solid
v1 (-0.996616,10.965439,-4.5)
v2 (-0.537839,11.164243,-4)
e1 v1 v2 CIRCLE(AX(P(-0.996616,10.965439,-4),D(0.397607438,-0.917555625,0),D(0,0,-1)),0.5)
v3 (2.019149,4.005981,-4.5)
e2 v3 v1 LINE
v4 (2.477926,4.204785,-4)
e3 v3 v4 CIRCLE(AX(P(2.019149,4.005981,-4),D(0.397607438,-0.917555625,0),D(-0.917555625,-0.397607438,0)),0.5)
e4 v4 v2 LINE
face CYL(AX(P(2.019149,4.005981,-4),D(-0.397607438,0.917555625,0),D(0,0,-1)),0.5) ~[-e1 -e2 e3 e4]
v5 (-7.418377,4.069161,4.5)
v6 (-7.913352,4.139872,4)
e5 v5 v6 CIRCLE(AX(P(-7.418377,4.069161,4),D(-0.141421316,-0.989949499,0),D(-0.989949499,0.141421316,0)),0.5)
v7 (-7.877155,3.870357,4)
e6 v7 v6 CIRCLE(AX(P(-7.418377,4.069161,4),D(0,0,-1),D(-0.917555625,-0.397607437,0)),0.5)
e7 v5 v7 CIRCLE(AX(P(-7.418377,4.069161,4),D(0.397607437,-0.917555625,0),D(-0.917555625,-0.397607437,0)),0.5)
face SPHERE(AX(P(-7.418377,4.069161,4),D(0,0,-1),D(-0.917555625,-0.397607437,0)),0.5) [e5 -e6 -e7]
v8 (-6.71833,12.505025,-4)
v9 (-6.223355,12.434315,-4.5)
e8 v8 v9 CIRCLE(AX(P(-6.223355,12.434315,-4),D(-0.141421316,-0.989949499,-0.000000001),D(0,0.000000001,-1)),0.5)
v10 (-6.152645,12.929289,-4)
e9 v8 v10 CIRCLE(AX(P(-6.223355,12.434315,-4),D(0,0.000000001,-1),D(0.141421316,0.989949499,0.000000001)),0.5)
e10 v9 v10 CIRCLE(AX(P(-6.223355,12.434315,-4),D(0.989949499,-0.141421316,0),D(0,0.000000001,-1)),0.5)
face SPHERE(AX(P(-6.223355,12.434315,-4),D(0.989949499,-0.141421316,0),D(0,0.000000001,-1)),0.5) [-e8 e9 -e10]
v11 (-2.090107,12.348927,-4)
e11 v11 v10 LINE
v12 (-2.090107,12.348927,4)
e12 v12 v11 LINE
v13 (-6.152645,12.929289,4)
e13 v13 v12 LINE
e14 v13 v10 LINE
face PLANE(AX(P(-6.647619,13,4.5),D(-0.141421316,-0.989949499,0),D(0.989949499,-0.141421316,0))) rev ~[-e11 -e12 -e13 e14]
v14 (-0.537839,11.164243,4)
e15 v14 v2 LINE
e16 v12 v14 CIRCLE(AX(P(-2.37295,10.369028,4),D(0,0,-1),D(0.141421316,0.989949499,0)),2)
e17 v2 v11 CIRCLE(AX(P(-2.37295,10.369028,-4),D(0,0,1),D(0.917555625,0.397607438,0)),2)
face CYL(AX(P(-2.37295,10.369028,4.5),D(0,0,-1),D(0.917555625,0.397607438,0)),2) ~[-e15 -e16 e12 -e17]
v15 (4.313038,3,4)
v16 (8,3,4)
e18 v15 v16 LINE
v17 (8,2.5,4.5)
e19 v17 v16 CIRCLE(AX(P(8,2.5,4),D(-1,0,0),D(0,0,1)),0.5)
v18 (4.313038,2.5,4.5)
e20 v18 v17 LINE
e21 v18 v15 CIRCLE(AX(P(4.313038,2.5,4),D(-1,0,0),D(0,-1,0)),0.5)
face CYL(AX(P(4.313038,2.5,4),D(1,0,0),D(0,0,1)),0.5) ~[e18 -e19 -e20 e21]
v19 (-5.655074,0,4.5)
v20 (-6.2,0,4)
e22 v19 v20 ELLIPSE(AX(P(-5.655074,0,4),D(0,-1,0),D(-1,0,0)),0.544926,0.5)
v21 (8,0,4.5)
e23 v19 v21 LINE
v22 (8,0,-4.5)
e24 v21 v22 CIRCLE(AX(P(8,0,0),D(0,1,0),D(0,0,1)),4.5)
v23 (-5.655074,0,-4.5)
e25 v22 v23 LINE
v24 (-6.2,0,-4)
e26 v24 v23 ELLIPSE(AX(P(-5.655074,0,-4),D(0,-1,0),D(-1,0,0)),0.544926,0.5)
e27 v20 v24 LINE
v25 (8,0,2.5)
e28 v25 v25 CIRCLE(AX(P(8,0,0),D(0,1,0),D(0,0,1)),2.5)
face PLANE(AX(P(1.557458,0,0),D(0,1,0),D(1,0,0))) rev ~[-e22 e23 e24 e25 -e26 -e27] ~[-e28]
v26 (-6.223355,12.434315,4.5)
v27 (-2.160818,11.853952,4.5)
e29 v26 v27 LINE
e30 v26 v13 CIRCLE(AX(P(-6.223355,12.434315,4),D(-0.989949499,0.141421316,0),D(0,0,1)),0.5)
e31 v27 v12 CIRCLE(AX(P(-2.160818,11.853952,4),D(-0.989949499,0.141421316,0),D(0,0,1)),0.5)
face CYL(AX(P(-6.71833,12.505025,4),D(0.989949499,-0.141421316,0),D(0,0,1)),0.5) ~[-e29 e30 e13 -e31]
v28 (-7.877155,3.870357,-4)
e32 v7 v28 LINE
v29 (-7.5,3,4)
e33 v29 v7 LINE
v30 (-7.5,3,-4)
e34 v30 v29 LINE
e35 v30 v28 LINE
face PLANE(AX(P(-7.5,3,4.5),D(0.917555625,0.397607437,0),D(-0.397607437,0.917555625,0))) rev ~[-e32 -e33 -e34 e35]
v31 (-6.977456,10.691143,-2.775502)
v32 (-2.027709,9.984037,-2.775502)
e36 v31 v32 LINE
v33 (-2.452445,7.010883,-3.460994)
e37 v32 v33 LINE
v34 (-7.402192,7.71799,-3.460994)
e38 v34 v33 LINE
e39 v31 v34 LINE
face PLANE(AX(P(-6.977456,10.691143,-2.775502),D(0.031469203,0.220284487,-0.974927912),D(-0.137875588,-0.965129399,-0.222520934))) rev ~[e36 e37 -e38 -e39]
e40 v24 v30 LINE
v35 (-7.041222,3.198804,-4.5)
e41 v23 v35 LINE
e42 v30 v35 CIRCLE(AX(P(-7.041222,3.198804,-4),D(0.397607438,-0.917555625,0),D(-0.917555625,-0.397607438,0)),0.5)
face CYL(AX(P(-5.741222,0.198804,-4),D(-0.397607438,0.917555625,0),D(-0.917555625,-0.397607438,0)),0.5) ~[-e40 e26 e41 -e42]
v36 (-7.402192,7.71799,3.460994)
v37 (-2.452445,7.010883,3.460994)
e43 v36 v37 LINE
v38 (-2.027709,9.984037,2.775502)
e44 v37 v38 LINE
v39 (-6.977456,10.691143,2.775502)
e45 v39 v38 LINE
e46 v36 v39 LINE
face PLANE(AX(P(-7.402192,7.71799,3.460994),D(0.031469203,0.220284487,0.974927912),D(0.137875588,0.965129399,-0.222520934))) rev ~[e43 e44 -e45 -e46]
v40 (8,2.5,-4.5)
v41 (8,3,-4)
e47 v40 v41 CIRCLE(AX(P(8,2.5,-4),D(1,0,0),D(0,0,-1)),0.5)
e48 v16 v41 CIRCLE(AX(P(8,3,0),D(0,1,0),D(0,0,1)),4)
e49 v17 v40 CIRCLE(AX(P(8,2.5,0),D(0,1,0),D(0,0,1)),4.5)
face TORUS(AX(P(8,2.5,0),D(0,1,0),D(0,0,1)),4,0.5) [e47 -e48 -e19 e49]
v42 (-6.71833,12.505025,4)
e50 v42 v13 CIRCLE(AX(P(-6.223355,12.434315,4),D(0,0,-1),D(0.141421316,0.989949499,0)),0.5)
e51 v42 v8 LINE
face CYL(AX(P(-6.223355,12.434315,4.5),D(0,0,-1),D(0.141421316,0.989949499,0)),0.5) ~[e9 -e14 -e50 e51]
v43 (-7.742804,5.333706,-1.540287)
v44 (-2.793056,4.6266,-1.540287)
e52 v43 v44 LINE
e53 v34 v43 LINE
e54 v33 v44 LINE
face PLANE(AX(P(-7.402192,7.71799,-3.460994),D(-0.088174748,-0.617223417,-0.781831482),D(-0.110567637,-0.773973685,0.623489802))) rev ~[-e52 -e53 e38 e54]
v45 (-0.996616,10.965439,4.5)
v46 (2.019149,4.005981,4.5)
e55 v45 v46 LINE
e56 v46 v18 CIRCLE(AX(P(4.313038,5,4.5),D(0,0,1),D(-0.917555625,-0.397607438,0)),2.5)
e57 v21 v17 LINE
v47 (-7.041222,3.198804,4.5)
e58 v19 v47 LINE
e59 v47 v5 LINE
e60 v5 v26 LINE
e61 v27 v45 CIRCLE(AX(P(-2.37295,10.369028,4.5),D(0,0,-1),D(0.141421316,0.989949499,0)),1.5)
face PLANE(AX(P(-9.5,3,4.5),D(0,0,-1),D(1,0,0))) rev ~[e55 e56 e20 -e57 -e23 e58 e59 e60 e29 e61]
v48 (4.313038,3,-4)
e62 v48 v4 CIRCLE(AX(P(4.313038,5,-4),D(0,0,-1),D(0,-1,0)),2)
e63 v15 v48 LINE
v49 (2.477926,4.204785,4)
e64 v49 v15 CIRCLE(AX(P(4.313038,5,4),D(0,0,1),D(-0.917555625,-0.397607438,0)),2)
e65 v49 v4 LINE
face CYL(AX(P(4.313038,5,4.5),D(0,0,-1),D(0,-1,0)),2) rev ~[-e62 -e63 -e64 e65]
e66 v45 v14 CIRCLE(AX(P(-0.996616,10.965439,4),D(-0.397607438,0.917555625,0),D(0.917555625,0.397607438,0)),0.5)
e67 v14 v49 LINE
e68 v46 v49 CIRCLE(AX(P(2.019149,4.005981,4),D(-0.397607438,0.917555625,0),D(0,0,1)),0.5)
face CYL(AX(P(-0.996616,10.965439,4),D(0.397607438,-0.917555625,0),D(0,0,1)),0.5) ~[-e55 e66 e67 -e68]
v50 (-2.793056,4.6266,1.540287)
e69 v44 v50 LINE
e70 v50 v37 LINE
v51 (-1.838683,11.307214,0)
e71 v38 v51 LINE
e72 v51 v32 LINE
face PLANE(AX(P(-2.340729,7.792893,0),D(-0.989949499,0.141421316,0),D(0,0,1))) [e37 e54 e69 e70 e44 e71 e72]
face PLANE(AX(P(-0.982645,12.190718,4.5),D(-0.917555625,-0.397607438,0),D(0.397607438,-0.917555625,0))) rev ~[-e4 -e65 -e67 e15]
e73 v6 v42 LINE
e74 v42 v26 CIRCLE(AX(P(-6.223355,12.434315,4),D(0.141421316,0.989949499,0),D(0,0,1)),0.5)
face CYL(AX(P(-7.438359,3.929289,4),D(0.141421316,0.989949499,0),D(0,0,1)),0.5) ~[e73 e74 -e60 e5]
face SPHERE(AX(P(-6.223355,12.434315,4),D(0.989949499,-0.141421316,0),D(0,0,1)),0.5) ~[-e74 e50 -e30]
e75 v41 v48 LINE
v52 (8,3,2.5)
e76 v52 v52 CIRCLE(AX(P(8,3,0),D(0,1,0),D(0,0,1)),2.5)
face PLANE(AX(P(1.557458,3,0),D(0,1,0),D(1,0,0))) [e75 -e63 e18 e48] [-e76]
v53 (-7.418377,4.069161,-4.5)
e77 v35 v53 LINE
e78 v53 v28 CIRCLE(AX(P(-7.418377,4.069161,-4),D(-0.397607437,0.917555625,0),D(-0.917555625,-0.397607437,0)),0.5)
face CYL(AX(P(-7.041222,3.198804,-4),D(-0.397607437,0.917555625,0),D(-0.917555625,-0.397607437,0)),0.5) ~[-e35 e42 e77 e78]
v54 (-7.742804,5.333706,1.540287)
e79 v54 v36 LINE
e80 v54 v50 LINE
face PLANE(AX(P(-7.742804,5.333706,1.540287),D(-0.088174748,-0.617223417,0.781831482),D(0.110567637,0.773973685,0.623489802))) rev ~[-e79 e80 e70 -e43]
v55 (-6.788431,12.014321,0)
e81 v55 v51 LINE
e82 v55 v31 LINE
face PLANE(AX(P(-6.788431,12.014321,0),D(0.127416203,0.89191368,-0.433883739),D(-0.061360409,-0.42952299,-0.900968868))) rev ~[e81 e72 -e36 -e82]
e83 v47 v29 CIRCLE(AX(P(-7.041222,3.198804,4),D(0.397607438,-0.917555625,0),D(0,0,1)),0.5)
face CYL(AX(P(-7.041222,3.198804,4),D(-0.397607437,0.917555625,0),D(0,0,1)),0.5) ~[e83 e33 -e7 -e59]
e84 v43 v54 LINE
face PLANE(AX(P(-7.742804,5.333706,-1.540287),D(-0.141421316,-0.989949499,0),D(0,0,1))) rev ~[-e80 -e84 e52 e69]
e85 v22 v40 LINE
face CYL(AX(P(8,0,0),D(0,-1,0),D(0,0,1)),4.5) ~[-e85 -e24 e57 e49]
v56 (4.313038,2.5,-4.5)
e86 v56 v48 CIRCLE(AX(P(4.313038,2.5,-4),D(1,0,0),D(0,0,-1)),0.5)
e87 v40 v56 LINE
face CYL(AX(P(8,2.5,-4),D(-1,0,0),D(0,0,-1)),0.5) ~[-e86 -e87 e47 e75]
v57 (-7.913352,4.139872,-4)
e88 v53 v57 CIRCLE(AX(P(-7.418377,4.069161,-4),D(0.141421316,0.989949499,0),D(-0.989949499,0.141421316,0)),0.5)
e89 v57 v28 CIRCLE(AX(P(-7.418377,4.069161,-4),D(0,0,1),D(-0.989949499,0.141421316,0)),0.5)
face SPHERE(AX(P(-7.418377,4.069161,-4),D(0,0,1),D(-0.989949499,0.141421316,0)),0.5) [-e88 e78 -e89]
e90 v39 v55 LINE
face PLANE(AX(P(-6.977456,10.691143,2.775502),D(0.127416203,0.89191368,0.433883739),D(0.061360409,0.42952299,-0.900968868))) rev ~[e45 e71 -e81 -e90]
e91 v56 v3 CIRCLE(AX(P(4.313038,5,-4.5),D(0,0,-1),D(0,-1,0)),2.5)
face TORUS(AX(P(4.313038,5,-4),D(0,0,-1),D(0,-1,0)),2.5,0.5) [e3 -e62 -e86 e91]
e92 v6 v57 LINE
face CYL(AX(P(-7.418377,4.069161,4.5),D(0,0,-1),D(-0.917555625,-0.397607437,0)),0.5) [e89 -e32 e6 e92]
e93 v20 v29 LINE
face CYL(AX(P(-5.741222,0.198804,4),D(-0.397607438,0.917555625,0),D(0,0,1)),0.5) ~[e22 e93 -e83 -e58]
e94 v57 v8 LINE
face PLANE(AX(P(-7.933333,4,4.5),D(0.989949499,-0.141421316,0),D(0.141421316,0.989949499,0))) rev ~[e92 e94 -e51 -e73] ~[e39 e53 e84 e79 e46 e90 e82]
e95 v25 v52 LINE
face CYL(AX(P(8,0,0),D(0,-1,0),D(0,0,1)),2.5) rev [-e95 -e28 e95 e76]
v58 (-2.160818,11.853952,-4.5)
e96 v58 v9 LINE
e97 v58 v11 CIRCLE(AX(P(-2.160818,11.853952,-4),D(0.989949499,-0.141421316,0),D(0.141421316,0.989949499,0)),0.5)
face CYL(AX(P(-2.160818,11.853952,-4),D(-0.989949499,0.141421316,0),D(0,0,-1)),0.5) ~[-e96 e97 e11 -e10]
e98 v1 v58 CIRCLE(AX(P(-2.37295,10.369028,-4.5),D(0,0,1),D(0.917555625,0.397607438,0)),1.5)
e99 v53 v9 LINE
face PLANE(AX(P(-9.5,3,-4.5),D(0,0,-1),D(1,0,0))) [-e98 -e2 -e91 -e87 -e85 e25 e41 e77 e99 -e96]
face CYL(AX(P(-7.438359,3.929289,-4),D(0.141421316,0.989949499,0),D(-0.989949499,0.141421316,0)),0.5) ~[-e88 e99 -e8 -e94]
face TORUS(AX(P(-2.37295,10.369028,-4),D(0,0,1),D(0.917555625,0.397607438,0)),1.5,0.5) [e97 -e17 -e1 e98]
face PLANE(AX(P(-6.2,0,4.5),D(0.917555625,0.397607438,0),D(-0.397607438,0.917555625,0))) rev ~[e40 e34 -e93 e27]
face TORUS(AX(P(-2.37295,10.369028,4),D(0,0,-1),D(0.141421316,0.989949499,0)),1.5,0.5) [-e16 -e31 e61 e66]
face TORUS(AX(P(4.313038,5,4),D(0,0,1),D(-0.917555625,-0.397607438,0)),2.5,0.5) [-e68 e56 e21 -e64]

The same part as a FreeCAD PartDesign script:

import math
import FreeCAD as App
import Part
import Sketcher

V = App.Vector
Q = App.Units.Quantity


def edges_at(feature, points):
    """Names of the edges that pass closest to the given points."""
    edges = feature.Shape.Edges
    near = lambda p: min(range(len(edges)), key=lambda i: edges[i].distToShape(Part.Vertex(*p))[0])
    return sorted({f"Edge{near(p) + 1}" for p in points})


def add_polygon(sketch, points):
    """Adds a closed chain of lines whose ends are joined by coincident constraints."""
    first, n = sketch.GeometryCount, len(points)
    for a, b in zip(points, points[1:] + points[:1]):
        sketch.addGeometry(Part.LineSegment(App.Vector(*a, 0), App.Vector(*b, 0)), False)
    for i in range(n):
        sketch.addConstraint(Sketcher.Constraint("Coincident", first + i, 2, first + (i + 1) % n, 1))

doc = App.newDocument("Part")
body = doc.addObject("PartDesign::Body", "Body")

sketch1 = doc.addObject("Sketcher::SketchObject", "Sketch")
body.addObject(sketch1)
sketch1.AttachmentSupport = (doc.XZ_Plane, [""])
sketch1.MapMode = "FlatFace"
sketch1.addGeometry([
    Part.LineSegment(V(-7.5, 4.5, 0), V(8, 4.5, 0)),
    Part.ArcOfCircle(Part.Circle(V(8, 0, 0), V(0, 0, 1), 4.5), math.radians(-90), math.radians(90)),
    Part.LineSegment(V(8, -4.5, 0), V(-7.5, -4.5, 0)),
    Part.LineSegment(V(-7.5, -4.5, 0), V(-7.5, 4.5, 0)),
    Part.Circle(V(8, 0, 0), V(0, 0, 1), 2.5),
], False)
sketch1.addConstraint([
    Sketcher.Constraint("Tangent", 0, 2, 1, 2),
    Sketcher.Constraint("Tangent", 1, 1, 2, 1),
    Sketcher.Constraint("Coincident", 2, 2, 3, 1),
    Sketcher.Constraint("Coincident", 3, 2, 0, 1),
    Sketcher.Constraint("Horizontal", 0),
    Sketcher.Constraint("Horizontal", 2),
    Sketcher.Constraint("Vertical", 3),
    Sketcher.Constraint("Coincident", 4, 3, 1, 3),
    Sketcher.Constraint("PointOnObject", 1, 3, -1),
    Sketcher.Constraint("Diameter", 4, Q("5 mm")),
    Sketcher.Constraint("Radius", 1, Q("4.5 mm")),
    Sketcher.Constraint("DistanceX", 0, 1, 0, 2, Q("15.5 mm")),
    Sketcher.Constraint("DistanceX", -1, 1, 1, 3, Q("8 mm")),
])
pad1 = doc.addObject("PartDesign::Pad", "Pad")
body.addObject(pad1)
pad1.Profile = sketch1
pad1.Length = 3
pad1.Reversed = True

sketch2 = doc.addObject("Sketcher::SketchObject", "Sketch001")
body.addObject(sketch2)
sketch2.AttachmentSupport = (doc.XZ_Plane, [""])
sketch2.MapMode = "FlatFace"
sketch2.AttachmentOffset = App.Placement(V(0, 0, -3), App.Rotation())
add_polygon(sketch2, [(-9.5, -4.5), (-9.5, 4.5), (3, 4.5), (3, -4.5)])
sketch2.addConstraint([
    Sketcher.Constraint("Vertical", 0),
    Sketcher.Constraint("Horizontal", 1),
    Sketcher.Constraint("Vertical", 2),
    Sketcher.Constraint("Horizontal", 3),
    Sketcher.Constraint("DistanceY", 0, 1, 0, 2, Q("9 mm")),
    Sketcher.Constraint("DistanceX", 1, 1, 1, 2, Q("12.5 mm")),
    Sketcher.Constraint("DistanceX", -1, 1, 1, 2, Q("3 mm")),
    Sketcher.Constraint("DistanceY", -1, 1, 0, 2, Q("4.5 mm")),
])
pad2 = doc.addObject("PartDesign::Pad", "Pad001")
body.addObject(pad2)
pad2.Profile = sketch2
pad2.Length = 10
pad2.Reversed = True

sketch3 = doc.addObject("Sketcher::SketchObject", "Sketch002")
body.addObject(sketch3)
sketch3.AttachmentSupport = (doc.XY_Plane, [""])
sketch3.MapMode = "FlatFace"
sketch3.AttachmentOffset = App.Placement(V(0, 0, 4.5), App.Rotation())
add_polygon(sketch3, [(-7.5, 3), (-7.933333, 4), (-6.647619, 13), (-9.5, 13), (-9.5, 0), (-6.2, 0)])
add_polygon(sketch3, [(3, 13), (-6.647619, 13), (-0.982645, 12.190718), (3, 3)])
sketch3.addConstraint([
    Sketcher.Constraint("Horizontal", 2),
    Sketcher.Constraint("Vertical", 3),
    Sketcher.Constraint("Horizontal", 4),
    Sketcher.Constraint("Horizontal", 6),
    Sketcher.Constraint("Vertical", 9),
    Sketcher.Constraint("Coincident", 6, 2, 1, 2),
    Sketcher.Constraint("PointOnObject", 3, 2, -1),
    Sketcher.Constraint("Parallel", 0, 5),
    Sketcher.Constraint("Perpendicular", 1, 7),
    Sketcher.Constraint("Parallel", 5, 8),
    Sketcher.Constraint("Horizontal", 5, 2, 8, 2),
    Sketcher.Constraint("DistanceY", 3, 2, 3, 1, Q("13 mm")),
    Sketcher.Constraint("DistanceY", 9, 1, 9, 2, Q("10 mm")),
    Sketcher.Constraint("DistanceX", 4, 1, 4, 2, Q("3.3 mm")),
    Sketcher.Constraint("DistanceY", -1, 1, 0, 2, Q("4 mm")),
    Sketcher.Constraint("DistanceX", -1, 1, 8, 2, Q("3 mm")),
    Sketcher.Constraint("DistanceX", 3, 2, 5, 2, Q("2 mm")),
    Sketcher.Constraint("DistanceX", 2, 2, -1, 1, Q("9.5 mm")),
    Sketcher.Constraint("DistanceX", 2, 2, 2, 1, Q("2.852381 mm")),
])
pocket1 = doc.addObject("PartDesign::Pocket", "Pocket")
body.addObject(pocket1)
pocket1.Profile = sketch3
pocket1.Length = 9

sketch4 = doc.addObject("Sketcher::SketchObject", "Sketch003")
body.addObject(sketch4)
sketch4.Placement = App.Placement(V(-8.334667, 1.190666, 0), App.Rotation(V(0, 0, 1), V(0.141421316, 0.989949499, 0), V(-0.989949499, 0.141421316, 0), "ZXY"))
add_polygon(sketch4, [(0, 10.933542), (-2.775502, 9.596931), (-3.460994, 6.593593), (-1.540287, 4.185103), (1.540287, 4.185103), (3.460994, 6.593593), (2.775502, 9.596931)])
sketch4.addConstraint([
    Sketcher.Constraint("Horizontal", 3),
    Sketcher.Constraint("Symmetric", 1, 2, 4, 2, -2),
    Sketcher.Constraint("Symmetric", 0, 2, 5, 2, -2),
    Sketcher.Constraint("PointOnObject", 6, 2, -2),
    Sketcher.Constraint("Equal", 0, 1),
    Sketcher.Constraint("Equal", 1, 2),
    Sketcher.Constraint("Equal", 2, 4),
    Sketcher.Constraint("DistanceX", 0, 2, -1, 1, Q("2.775502 mm")),
    Sketcher.Constraint("DistanceX", 3, 1, 3, 2, Q("3.080575 mm")),
    Sketcher.Constraint("DistanceY", -1, 1, 0, 2, Q("9.596931 mm")),
    Sketcher.Constraint("DistanceY", -1, 1, 6, 2, Q("10.933542 mm")),
    Sketcher.Constraint("DistanceY", 1, 2, 0, 2, Q("3.003338 mm")),
])
pocket2 = doc.addObject("PartDesign::Pocket", "Pocket001")
body.addObject(pocket2)
pocket2.Profile = sketch4
pocket2.Length = 5
doc.recompute()

fillet = doc.addObject("PartDesign::Fillet", "Fillet")
body.addObject(fillet)
fillet.Base = (pocket2, edges_at(pocket2, [(3, 3, 0), (-0.983, 12.191, 0)]))
fillet.Radius = 2
doc.recompute()

fillet2 = doc.addObject("PartDesign::Fillet", "Fillet001")
body.addObject(fillet2)
fillet2.Base = (fillet, edges_at(fillet, [
    (6.157, 3, 4.5),
    (-1.16, 11.959, 4.5),
    (-1.16, 11.959, -4.5),
    (3.215, 3.328, -4.5),
    (3.215, 3.328, 4.5),
    (12.5, 3, 0),
    (6.157, 3, -4.5),
    (-6.85, 1.5, -4.5),
    (-7.933, 4, 0),
    (-6.85, 1.5, 4.5),
    (-7.29, 8.5, 4.5),
    (-7.29, 8.5, -4.5),
    (-6.648, 13, 0),
    (-4.369, 12.674, -4.5),
    (-4.369, 12.674, 4.5),
    (0.97, 7.685, 4.5),
    (0.97, 7.685, -4.5),
]))
fillet2.Radius = 0.5

doc.recompute()
